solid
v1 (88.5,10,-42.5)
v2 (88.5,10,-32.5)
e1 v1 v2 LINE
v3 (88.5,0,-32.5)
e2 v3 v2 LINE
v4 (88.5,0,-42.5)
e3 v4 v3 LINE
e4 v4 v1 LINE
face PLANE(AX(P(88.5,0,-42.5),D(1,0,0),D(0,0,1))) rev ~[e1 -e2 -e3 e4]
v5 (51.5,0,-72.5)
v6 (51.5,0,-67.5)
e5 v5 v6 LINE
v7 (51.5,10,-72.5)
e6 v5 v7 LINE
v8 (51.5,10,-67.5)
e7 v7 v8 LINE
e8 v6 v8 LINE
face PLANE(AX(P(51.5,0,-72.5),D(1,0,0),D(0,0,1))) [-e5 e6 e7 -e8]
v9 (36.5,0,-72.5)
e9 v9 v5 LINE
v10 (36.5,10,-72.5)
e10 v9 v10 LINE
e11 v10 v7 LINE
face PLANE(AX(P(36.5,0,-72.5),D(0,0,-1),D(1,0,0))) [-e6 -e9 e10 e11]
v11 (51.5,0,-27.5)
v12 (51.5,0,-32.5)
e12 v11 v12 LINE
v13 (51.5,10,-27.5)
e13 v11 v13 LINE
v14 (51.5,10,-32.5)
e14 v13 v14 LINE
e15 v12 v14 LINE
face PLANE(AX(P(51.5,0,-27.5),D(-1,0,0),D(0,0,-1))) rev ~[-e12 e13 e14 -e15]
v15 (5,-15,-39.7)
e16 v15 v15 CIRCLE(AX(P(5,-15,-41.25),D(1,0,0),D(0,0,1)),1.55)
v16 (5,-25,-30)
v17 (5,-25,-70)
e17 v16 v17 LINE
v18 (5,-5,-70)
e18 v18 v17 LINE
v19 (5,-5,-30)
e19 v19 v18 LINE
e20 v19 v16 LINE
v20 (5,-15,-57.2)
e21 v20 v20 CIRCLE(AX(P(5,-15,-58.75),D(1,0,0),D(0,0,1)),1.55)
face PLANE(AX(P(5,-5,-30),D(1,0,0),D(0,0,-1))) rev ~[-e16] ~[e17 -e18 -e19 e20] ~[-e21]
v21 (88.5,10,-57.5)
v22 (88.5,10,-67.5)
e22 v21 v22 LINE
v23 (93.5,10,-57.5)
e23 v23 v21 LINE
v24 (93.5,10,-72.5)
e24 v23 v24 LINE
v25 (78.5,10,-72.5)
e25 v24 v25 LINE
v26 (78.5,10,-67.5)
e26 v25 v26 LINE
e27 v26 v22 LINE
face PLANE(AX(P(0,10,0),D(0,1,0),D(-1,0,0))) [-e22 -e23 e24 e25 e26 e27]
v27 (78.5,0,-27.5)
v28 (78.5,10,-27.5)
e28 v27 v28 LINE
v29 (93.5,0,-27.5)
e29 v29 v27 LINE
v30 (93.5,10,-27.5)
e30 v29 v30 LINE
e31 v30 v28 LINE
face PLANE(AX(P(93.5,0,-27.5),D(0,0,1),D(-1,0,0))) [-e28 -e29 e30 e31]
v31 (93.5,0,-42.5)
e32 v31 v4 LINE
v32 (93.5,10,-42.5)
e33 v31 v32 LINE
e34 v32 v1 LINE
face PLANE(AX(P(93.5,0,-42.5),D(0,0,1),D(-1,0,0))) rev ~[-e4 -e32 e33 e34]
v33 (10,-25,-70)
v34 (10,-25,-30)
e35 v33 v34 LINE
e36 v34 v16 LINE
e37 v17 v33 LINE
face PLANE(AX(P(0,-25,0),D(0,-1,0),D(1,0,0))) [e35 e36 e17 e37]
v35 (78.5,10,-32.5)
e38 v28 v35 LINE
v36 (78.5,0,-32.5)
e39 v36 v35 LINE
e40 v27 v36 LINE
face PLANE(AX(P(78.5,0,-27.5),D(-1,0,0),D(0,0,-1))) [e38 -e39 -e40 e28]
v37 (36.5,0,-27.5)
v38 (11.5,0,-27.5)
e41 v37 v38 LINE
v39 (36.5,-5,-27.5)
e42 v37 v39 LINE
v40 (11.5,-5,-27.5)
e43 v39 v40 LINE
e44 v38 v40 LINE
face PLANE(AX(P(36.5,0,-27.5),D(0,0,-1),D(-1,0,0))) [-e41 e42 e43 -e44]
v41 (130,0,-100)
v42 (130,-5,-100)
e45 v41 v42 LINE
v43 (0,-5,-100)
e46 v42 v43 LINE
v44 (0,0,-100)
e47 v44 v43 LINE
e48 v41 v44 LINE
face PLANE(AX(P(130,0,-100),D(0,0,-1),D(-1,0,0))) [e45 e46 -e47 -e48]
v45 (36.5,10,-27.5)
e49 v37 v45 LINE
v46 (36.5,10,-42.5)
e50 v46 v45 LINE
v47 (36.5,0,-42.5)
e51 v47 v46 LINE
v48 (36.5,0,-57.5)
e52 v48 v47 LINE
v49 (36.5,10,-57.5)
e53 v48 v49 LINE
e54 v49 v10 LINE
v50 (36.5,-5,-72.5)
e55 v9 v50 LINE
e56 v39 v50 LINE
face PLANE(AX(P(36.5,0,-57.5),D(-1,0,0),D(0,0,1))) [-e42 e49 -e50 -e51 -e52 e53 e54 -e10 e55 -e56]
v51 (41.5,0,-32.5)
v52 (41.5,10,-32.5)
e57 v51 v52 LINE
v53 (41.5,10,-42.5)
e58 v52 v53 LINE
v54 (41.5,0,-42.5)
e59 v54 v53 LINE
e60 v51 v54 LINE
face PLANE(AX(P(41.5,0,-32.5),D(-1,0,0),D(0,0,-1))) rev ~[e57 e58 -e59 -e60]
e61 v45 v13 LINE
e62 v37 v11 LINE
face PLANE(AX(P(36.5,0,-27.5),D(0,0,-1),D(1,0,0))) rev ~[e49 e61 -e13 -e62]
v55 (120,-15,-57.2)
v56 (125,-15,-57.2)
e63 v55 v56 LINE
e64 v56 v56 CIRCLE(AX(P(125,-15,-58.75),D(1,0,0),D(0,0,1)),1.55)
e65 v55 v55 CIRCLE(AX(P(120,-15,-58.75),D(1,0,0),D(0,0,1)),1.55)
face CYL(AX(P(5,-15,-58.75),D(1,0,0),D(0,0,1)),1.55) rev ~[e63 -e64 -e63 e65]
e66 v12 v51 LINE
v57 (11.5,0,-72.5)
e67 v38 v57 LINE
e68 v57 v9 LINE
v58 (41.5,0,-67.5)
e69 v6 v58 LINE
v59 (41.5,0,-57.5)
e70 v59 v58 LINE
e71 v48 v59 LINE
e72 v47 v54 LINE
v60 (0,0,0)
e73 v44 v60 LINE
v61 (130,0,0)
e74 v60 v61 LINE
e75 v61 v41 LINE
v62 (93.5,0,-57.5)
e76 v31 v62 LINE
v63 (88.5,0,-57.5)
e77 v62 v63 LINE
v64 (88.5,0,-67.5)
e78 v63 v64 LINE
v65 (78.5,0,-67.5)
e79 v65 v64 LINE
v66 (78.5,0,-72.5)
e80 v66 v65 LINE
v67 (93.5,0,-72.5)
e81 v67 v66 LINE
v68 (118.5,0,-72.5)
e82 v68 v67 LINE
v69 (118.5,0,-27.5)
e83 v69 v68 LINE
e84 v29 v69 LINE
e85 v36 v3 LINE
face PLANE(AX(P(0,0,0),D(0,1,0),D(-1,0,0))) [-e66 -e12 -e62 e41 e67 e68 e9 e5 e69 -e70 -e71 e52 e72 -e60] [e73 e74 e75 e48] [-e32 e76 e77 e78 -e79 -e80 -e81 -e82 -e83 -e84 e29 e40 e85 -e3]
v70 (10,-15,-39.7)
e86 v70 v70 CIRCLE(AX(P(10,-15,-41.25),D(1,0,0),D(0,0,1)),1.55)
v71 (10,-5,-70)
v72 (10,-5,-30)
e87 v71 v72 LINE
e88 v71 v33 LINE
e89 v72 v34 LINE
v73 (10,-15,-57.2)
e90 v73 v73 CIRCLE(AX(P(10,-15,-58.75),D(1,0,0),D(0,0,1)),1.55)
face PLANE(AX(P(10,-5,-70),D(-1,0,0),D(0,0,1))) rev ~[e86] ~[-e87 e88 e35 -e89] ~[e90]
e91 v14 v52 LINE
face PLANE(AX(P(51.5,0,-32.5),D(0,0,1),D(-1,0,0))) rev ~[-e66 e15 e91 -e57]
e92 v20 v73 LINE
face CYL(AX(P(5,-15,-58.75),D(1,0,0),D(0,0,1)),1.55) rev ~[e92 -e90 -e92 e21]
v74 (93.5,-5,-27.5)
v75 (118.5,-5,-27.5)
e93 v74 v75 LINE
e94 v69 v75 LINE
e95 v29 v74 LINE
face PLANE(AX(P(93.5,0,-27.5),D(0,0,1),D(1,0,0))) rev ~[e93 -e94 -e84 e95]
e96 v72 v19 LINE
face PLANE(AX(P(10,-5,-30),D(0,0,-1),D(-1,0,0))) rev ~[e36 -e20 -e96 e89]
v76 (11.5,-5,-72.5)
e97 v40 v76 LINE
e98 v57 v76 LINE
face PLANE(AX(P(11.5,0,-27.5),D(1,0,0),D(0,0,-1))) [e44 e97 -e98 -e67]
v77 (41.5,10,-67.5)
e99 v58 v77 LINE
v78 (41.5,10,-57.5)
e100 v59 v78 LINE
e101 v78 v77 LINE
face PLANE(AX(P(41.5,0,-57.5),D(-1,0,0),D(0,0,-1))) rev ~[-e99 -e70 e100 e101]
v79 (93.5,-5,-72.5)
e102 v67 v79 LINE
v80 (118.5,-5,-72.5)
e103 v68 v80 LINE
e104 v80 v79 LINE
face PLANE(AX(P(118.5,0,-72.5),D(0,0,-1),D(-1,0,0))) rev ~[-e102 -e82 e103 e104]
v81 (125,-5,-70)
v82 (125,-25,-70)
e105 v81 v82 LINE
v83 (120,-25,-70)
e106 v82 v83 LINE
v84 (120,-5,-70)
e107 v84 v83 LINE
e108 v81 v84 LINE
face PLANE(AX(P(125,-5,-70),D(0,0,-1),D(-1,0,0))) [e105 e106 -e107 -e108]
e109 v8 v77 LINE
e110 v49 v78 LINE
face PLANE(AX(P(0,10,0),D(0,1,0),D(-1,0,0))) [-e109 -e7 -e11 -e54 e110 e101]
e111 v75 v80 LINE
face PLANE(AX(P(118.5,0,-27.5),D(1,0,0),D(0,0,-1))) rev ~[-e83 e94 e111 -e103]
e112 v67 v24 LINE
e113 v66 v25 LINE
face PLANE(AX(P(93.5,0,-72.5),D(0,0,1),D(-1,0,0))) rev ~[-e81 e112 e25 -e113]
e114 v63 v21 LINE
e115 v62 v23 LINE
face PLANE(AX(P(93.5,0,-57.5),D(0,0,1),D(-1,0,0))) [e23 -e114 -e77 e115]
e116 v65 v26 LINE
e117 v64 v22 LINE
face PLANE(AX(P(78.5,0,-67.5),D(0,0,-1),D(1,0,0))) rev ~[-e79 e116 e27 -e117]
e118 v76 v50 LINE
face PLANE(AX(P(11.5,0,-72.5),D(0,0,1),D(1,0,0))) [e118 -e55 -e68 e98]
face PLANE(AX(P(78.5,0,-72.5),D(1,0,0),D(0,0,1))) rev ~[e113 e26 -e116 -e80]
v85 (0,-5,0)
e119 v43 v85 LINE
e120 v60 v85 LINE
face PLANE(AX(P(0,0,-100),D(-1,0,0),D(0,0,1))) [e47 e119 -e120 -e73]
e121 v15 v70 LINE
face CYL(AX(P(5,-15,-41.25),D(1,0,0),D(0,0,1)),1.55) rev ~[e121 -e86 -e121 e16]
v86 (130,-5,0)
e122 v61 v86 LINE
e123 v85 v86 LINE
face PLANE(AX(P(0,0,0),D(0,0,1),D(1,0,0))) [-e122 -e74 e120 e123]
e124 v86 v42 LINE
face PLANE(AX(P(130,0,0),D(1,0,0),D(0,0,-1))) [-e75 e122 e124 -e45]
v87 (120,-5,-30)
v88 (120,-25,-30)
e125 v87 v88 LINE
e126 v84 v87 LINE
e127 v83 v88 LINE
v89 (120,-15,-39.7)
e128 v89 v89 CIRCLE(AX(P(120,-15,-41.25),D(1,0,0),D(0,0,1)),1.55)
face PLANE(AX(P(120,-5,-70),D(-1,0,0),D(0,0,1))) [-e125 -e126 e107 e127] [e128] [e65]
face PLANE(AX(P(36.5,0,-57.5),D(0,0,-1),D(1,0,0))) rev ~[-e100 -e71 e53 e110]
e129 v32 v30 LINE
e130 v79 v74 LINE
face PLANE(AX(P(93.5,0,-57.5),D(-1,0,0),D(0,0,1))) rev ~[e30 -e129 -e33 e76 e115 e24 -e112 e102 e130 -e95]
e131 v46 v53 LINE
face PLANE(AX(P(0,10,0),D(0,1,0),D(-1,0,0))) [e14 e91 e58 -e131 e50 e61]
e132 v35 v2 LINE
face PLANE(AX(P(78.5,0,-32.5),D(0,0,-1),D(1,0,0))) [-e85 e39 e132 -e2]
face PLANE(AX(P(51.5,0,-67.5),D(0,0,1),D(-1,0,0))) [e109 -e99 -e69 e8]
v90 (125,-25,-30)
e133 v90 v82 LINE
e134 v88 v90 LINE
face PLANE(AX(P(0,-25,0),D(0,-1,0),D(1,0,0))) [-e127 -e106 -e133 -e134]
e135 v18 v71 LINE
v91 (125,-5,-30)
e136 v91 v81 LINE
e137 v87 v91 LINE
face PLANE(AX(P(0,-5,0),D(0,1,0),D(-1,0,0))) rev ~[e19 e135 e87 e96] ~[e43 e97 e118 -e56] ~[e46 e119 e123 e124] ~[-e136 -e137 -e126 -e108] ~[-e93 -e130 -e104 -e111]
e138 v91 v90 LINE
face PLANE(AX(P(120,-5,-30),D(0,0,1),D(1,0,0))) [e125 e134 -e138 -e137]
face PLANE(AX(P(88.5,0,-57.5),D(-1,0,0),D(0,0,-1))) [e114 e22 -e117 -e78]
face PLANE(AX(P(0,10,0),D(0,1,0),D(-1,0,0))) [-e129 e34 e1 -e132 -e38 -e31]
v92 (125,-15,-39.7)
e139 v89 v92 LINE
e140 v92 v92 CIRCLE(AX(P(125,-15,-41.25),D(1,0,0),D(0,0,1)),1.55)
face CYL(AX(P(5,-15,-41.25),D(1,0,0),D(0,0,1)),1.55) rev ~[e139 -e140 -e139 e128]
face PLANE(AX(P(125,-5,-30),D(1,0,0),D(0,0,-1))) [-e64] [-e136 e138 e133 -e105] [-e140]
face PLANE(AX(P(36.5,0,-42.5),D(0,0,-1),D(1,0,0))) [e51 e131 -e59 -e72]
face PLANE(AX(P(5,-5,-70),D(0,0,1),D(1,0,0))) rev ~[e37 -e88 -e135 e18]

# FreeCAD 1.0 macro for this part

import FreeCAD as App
import Part
import Sketcher

doc = App.newDocument("Part")
body = doc.addObject("PartDesign::Body", "Body")

# Sketch on XZ plane
sketch1 = body.newObject("Sketcher::SketchObject", "Sketch")
sketch1.AttachmentSupport = (doc.getObject("XZ_Plane"), [""])
sketch1.MapMode = "FlatFace"
sketch1.addGeometry([
    Part.LineSegment(App.Vector(0, -100, 0), App.Vector(0, 0, 0)),  # 0
    Part.LineSegment(App.Vector(0, 0, 0), App.Vector(130, 0, 0)),  # 1
    Part.LineSegment(App.Vector(130, 0, 0), App.Vector(130, -100, 0)),  # 2
    Part.LineSegment(App.Vector(130, -100, 0), App.Vector(0, -100, 0)),  # 3
    Part.LineSegment(App.Vector(118, -28, 0), App.Vector(94, -28, 0)),  # 4
    Part.LineSegment(App.Vector(94, -28, 0), App.Vector(94, -72, 0)),  # 5
    Part.LineSegment(App.Vector(94, -72, 0), App.Vector(118, -72, 0)),  # 6
    Part.LineSegment(App.Vector(118, -72, 0), App.Vector(118, -28, 0)),  # 7
    Part.LineSegment(App.Vector(36, -28, 0), App.Vector(12, -28, 0)),  # 8
    Part.LineSegment(App.Vector(12, -28, 0), App.Vector(12, -72, 0)),  # 9
    Part.LineSegment(App.Vector(12, -72, 0), App.Vector(36, -72, 0)),  # 10
    Part.LineSegment(App.Vector(36, -72, 0), App.Vector(36, -28, 0)),  # 11
], False)
sketch1.addConstraint([
    Sketcher.Constraint("Coincident", 0, 2, 1, 1),
    Sketcher.Constraint("Coincident", 1, 2, 2, 1),
    Sketcher.Constraint("Coincident", 2, 2, 3, 1),
    Sketcher.Constraint("Coincident", 3, 2, 0, 1),
    Sketcher.Constraint("Coincident", 4, 2, 5, 1),
    Sketcher.Constraint("Coincident", 5, 2, 6, 1),
    Sketcher.Constraint("Coincident", 6, 2, 7, 1),
    Sketcher.Constraint("Coincident", 7, 2, 4, 1),
    Sketcher.Constraint("Coincident", 8, 2, 9, 1),
    Sketcher.Constraint("Coincident", 9, 2, 10, 1),
    Sketcher.Constraint("Coincident", 10, 2, 11, 1),
    Sketcher.Constraint("Coincident", 11, 2, 8, 1),
    Sketcher.Constraint("Vertical", 0),
    Sketcher.Constraint("Horizontal", 1),
    Sketcher.Constraint("Vertical", 2),
    Sketcher.Constraint("Horizontal", 3),
    Sketcher.Constraint("Horizontal", 4),
    Sketcher.Constraint("Vertical", 5),
    Sketcher.Constraint("Horizontal", 6),
    Sketcher.Constraint("Vertical", 7),
    Sketcher.Constraint("Horizontal", 8),
    Sketcher.Constraint("Vertical", 9),
    Sketcher.Constraint("Horizontal", 10),
    Sketcher.Constraint("Vertical", 11),
    Sketcher.Constraint("Coincident", 0, 2, -1, 1),
    Sketcher.Constraint("Horizontal", 7, 2, 8, 2),
    Sketcher.Constraint("Horizontal", 6, 2, 9, 2),
    Sketcher.Constraint("Equal", 6, 8),
    Sketcher.Constraint("DistanceX", 1, 1, 1, 2, 130.0),
    Sketcher.Constraint("DistanceX", 4, 2, 4, 1, 25.0),
    Sketcher.Constraint("DistanceY", 0, 1, 0, 2, 100.0),
    Sketcher.Constraint("DistanceY", 5, 2, 5, 1, 45.0),
    Sketcher.Constraint("DistanceX", 8, 2, 4, 2, 82.0),
    Sketcher.Constraint("DistanceX", -1, 1, 4, 2, 93.5),
    Sketcher.Constraint("DistanceY", 4, 2, -1, 1, 27.5),
])
pad1 = body.newObject("PartDesign::Pad", "Pad")
pad1.Profile = sketch1
pad1.Length = 5

# Sketch on XZ plane
sketch2 = body.newObject("Sketcher::SketchObject", "Sketch001")
sketch2.AttachmentSupport = (doc.getObject("XZ_Plane"), [""])
sketch2.MapMode = "FlatFace"
sketch2.addGeometry([
    Part.LineSegment(App.Vector(52, -32, 0), App.Vector(42, -32, 0)),  # 0
    Part.LineSegment(App.Vector(42, -32, 0), App.Vector(42, -42, 0)),  # 1
    Part.LineSegment(App.Vector(42, -42, 0), App.Vector(36, -42, 0)),  # 2
    Part.LineSegment(App.Vector(36, -42, 0), App.Vector(36, -28, 0)),  # 3
    Part.LineSegment(App.Vector(36, -28, 0), App.Vector(52, -28, 0)),  # 4
    Part.LineSegment(App.Vector(52, -28, 0), App.Vector(52, -32, 0)),  # 5
    Part.LineSegment(App.Vector(36, -72, 0), App.Vector(36, -58, 0)),  # 6
    Part.LineSegment(App.Vector(36, -58, 0), App.Vector(42, -58, 0)),  # 7
    Part.LineSegment(App.Vector(42, -58, 0), App.Vector(42, -68, 0)),  # 8
    Part.LineSegment(App.Vector(42, -68, 0), App.Vector(52, -68, 0)),  # 9
    Part.LineSegment(App.Vector(52, -68, 0), App.Vector(52, -72, 0)),  # 10
    Part.LineSegment(App.Vector(52, -72, 0), App.Vector(36, -72, 0)),  # 11
    Part.LineSegment(App.Vector(94, -28, 0), App.Vector(94, -42, 0)),  # 12
    Part.LineSegment(App.Vector(94, -42, 0), App.Vector(88, -42, 0)),  # 13
    Part.LineSegment(App.Vector(88, -42, 0), App.Vector(88, -32, 0)),  # 14
    Part.LineSegment(App.Vector(88, -32, 0), App.Vector(78, -32, 0)),  # 15
    Part.LineSegment(App.Vector(78, -32, 0), App.Vector(78, -28, 0)),  # 16
    Part.LineSegment(App.Vector(78, -28, 0), App.Vector(94, -28, 0)),  # 17
    Part.LineSegment(App.Vector(88, -58, 0), App.Vector(94, -58, 0)),  # 18
    Part.LineSegment(App.Vector(94, -58, 0), App.Vector(94, -72, 0)),  # 19
    Part.LineSegment(App.Vector(94, -72, 0), App.Vector(78, -72, 0)),  # 20
    Part.LineSegment(App.Vector(78, -72, 0), App.Vector(78, -68, 0)),  # 21
    Part.LineSegment(App.Vector(78, -68, 0), App.Vector(88, -68, 0)),  # 22
    Part.LineSegment(App.Vector(88, -68, 0), App.Vector(88, -58, 0)),  # 23
], False)
sketch2.addConstraint([
    Sketcher.Constraint("Coincident", 0, 2, 1, 1),
    Sketcher.Constraint("Coincident", 1, 2, 2, 1),
    Sketcher.Constraint("Coincident", 2, 2, 3, 1),
    Sketcher.Constraint("Coincident", 3, 2, 4, 1),
    Sketcher.Constraint("Coincident", 4, 2, 5, 1),
    Sketcher.Constraint("Coincident", 5, 2, 0, 1),
    Sketcher.Constraint("Coincident", 6, 2, 7, 1),
    Sketcher.Constraint("Coincident", 7, 2, 8, 1),
    Sketcher.Constraint("Coincident", 8, 2, 9, 1),
    Sketcher.Constraint("Coincident", 9, 2, 10, 1),
    Sketcher.Constraint("Coincident", 10, 2, 11, 1),
    Sketcher.Constraint("Coincident", 11, 2, 6, 1),
    Sketcher.Constraint("Coincident", 12, 2, 13, 1),
    Sketcher.Constraint("Coincident", 13, 2, 14, 1),
    Sketcher.Constraint("Coincident", 14, 2, 15, 1),
    Sketcher.Constraint("Coincident", 15, 2, 16, 1),
    Sketcher.Constraint("Coincident", 16, 2, 17, 1),
    Sketcher.Constraint("Coincident", 17, 2, 12, 1),
    Sketcher.Constraint("Coincident", 18, 2, 19, 1),
    Sketcher.Constraint("Coincident", 19, 2, 20, 1),
    Sketcher.Constraint("Coincident", 20, 2, 21, 1),
    Sketcher.Constraint("Coincident", 21, 2, 22, 1),
    Sketcher.Constraint("Coincident", 22, 2, 23, 1),
    Sketcher.Constraint("Coincident", 23, 2, 18, 1),
    Sketcher.Constraint("Horizontal", 0),
    Sketcher.Constraint("Vertical", 1),
    Sketcher.Constraint("Horizontal", 2),
    Sketcher.Constraint("Vertical", 3),
    Sketcher.Constraint("Horizontal", 4),
    Sketcher.Constraint("Vertical", 5),
    Sketcher.Constraint("Vertical", 6),
    Sketcher.Constraint("Horizontal", 7),
    Sketcher.Constraint("Vertical", 8),
    Sketcher.Constraint("Horizontal", 9),
    Sketcher.Constraint("Vertical", 10),
    Sketcher.Constraint("Horizontal", 11),
    Sketcher.Constraint("Vertical", 12),
    Sketcher.Constraint("Horizontal", 13),
    Sketcher.Constraint("Vertical", 14),
    Sketcher.Constraint("Horizontal", 15),
    Sketcher.Constraint("Vertical", 16),
    Sketcher.Constraint("Horizontal", 17),
    Sketcher.Constraint("Horizontal", 18),
    Sketcher.Constraint("Vertical", 19),
    Sketcher.Constraint("Horizontal", 20),
    Sketcher.Constraint("Vertical", 21),
    Sketcher.Constraint("Horizontal", 22),
    Sketcher.Constraint("Vertical", 23),
    Sketcher.Constraint("Horizontal", 2, 2, 12, 2),
    Sketcher.Constraint("Horizontal", 5, 2, 14, 2),
    Sketcher.Constraint("Horizontal", 4, 2, 16, 2),
    Sketcher.Constraint("Horizontal", 7, 2, 18, 2),
    Sketcher.Constraint("Horizontal", 11, 2, 19, 2),
    Sketcher.Constraint("Horizontal", 9, 2, 21, 2),
    Sketcher.Constraint("Vertical", 3, 2, 6, 2),
    Sketcher.Constraint("Vertical", 1, 2, 7, 2),
    Sketcher.Constraint("Vertical", 5, 2, 9, 2),
    Sketcher.Constraint("Vertical", 17, 2, 18, 2),
    Sketcher.Constraint("Vertical", 16, 2, 20, 2),
    Sketcher.Constraint("Vertical", 14, 2, 22, 2),
    Sketcher.Constraint("Equal", 7, 13),
    Sketcher.Constraint("Equal", 9, 15),
    Sketcher.Constraint("Equal", 22, 1),
    Sketcher.Constraint("Equal", 20, 3),
    Sketcher.Constraint("Equal", 3, 6),
    Sketcher.Constraint("Equal", 1, 8),
    Sketcher.Constraint("DistanceX", 0, 2, 0, 1, 10.0),
    Sketcher.Constraint("DistanceX", 2, 2, 2, 1, 5.0),
    Sketcher.Constraint("DistanceY", 6, 2, 0, 2, 25.0),
    Sketcher.Constraint("DistanceX", 1, 2, 13, 2, 47.0),
    Sketcher.Constraint("DistanceX", -1, 1, 0, 2, 41.5),
    Sketcher.Constraint("DistanceY", 0, 2, -1, 1, 32.5),
])
pad2 = body.newObject("PartDesign::Pad", "Pad001")
pad2.Profile = sketch2
pad2.Length = 10
pad2.Reversed = True

# Sketch on XZ plane
sketch3 = body.newObject("Sketcher::SketchObject", "Sketch002")
sketch3.AttachmentSupport = (doc.getObject("XZ_Plane"), [""])
sketch3.MapMode = "FlatFace"
sketch3.AttachmentOffset = App.Placement(App.Vector(0, 0, 5), App.Rotation())
sketch3.addGeometry([
    Part.LineSegment(App.Vector(125, -30, 0), App.Vector(120, -30, 0)),  # 0
    Part.LineSegment(App.Vector(120, -30, 0), App.Vector(120, -70, 0)),  # 1
    Part.LineSegment(App.Vector(120, -70, 0), App.Vector(125, -70, 0)),  # 2
    Part.LineSegment(App.Vector(125, -70, 0), App.Vector(125, -30, 0)),  # 3
    Part.LineSegment(App.Vector(10, -70, 0), App.Vector(10, -30, 0)),  # 4
    Part.LineSegment(App.Vector(10, -30, 0), App.Vector(5, -30, 0)),  # 5
    Part.LineSegment(App.Vector(5, -30, 0), App.Vector(5, -70, 0)),  # 6
    Part.LineSegment(App.Vector(5, -70, 0), App.Vector(10, -70, 0)),  # 7
], False)
sketch3.addConstraint([
    Sketcher.Constraint("Coincident", 0, 2, 1, 1),
    Sketcher.Constraint("Coincident", 1, 2, 2, 1),
    Sketcher.Constraint("Coincident", 2, 2, 3, 1),
    Sketcher.Constraint("Coincident", 3, 2, 0, 1),
    Sketcher.Constraint("Coincident", 4, 2, 5, 1),
    Sketcher.Constraint("Coincident", 5, 2, 6, 1),
    Sketcher.Constraint("Coincident", 6, 2, 7, 1),
    Sketcher.Constraint("Coincident", 7, 2, 4, 1),
    Sketcher.Constraint("Horizontal", 0),
    Sketcher.Constraint("Vertical", 1),
    Sketcher.Constraint("Horizontal", 2),
    Sketcher.Constraint("Vertical", 3),
    Sketcher.Constraint("Vertical", 4),
    Sketcher.Constraint("Horizontal", 5),
    Sketcher.Constraint("Vertical", 6),
    Sketcher.Constraint("Horizontal", 7),
    Sketcher.Constraint("Horizontal", 3, 2, 4, 2),
    Sketcher.Constraint("Horizontal", 2, 2, 6, 2),
    Sketcher.Constraint("Equal", 2, 5),
    Sketcher.Constraint("DistanceX", 0, 2, 0, 1, 5.0),
    Sketcher.Constraint("DistanceY", 1, 2, 1, 1, 40.0),
    Sketcher.Constraint("DistanceX", -1, 1, 5, 2, 5.0),
    Sketcher.Constraint("DistanceX", -1, 1, 0, 2, 120.0),
    Sketcher.Constraint("DistanceY", 0, 2, -1, 1, 30.0),
])
pad3 = body.newObject("PartDesign::Pad", "Pad002")
pad3.Profile = sketch3
pad3.Length = 20

# Sketch on YZ plane
sketch4 = body.newObject("Sketcher::SketchObject", "Sketch003")
sketch4.AttachmentSupport = (doc.getObject("YZ_Plane"), [""])
sketch4.MapMode = "FlatFace"
sketch4.AttachmentOffset = App.Placement(App.Vector(0, 0, 5), App.Rotation())
sketch4.addGeometry([
    Part.Circle(App.Vector(-15, -41.2, 0), App.Vector(0, 0, 1), 1.6),
    Part.Circle(App.Vector(-15, -58.8, 0), App.Vector(0, 0, 1), 1.6),
], False)
sketch4.addConstraint([
    Sketcher.Constraint("Equal", 0, 1),
    Sketcher.Constraint("Vertical", 0, 3, 1, 3),
    Sketcher.Constraint("Diameter", 0, 3.1),
    Sketcher.Constraint("DistanceX", 0, 3, -1, 1, 15.0),
    Sketcher.Constraint("DistanceY", 1, 3, 0, 3, 17.5),
    Sketcher.Constraint("DistanceY", 0, 3, -1, 1, 41.25),
])
doc.recompute()
hole = body.newObject("PartDesign::Hole", "Hole")
hole.Profile = sketch4
hole.ThreadType = "None"
hole.Diameter = 3.1
hole.DepthType = "ThroughAll"
hole.Reversed = True

doc.recompute()
